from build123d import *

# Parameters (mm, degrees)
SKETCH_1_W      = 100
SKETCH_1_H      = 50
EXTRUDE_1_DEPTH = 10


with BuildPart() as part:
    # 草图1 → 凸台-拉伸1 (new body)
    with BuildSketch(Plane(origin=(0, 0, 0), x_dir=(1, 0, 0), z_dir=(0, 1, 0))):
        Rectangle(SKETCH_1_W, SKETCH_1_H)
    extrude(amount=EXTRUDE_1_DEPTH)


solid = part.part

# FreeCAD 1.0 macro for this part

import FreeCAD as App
import Part
import Sketcher
from FreeCAD import Vector
Q = App.Units.Quantity

doc = App.newDocument("Part")
params = doc.addObject("Spreadsheet::Sheet", "Params")
for row, (alias, value) in enumerate([
    ("sketch1_width", "100 mm"),
    ("sketch1_height", "50 mm"),
    ("pad1_length", "10 mm"),
], start=1):
    params.set(f"A{row}", alias)
    params.set(f"B{row}", "=" + value)
    params.setAlias(f"B{row}", alias)

body = doc.addObject("PartDesign::Body", "Body")

sketch1 = body.newObject("Sketcher::SketchObject", "Sketch")
sketch1.AttachmentSupport = (doc.getObject("XZ_Plane"), [""])
sketch1.MapMode = "FlatFace"
sketch1.addGeometry([
    Part.LineSegment(Vector(-50, -25, 0), Vector(-50, 25, 0)),
    Part.LineSegment(Vector(-50, 25, 0), Vector(50, 25, 0)),
    Part.LineSegment(Vector(50, 25, 0), Vector(50, -25, 0)),
    Part.LineSegment(Vector(50, -25, 0), Vector(-50, -25, 0)),
], False)
sketch1.addConstraint([
    Sketcher.Constraint("Coincident", 0, 2, 1, 1),
    Sketcher.Constraint("Coincident", 1, 2, 2, 1),
    Sketcher.Constraint("Coincident", 2, 2, 3, 1),
    Sketcher.Constraint("Coincident", 3, 2, 0, 1),
    Sketcher.Constraint("Vertical", 0),
    Sketcher.Constraint("Horizontal", 1),
    Sketcher.Constraint("Vertical", 2),
    Sketcher.Constraint("Horizontal", 3),
    Sketcher.Constraint("Symmetric", 0, 2, 2, 2, -1, 1),
    Sketcher.Constraint("DistanceX", 1, 1, 1, 2, Q("100 mm")),
    Sketcher.Constraint("DistanceY", 0, 1, 0, 2, Q("50 mm")),
])
sketch1.setExpression("Constraints[9]", "Params.sketch1_width")
sketch1.setExpression("Constraints[10]", "Params.sketch1_height")
pad1 = body.newObject("PartDesign::Pad", "Pad")
pad1.Profile = sketch1
pad1.setExpression("Length", "Params.pad1_length")
pad1.Reversed = True

doc.recompute()
